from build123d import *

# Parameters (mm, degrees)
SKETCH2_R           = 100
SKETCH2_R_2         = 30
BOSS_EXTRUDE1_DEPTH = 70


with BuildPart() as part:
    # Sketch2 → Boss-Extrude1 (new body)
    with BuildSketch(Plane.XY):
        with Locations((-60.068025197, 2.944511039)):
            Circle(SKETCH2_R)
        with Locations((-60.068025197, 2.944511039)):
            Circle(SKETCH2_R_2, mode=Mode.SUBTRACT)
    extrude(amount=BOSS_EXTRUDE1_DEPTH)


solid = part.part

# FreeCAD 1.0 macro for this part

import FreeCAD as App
import Part
import Sketcher
from FreeCAD import Vector
Q = App.Units.Quantity

doc = App.newDocument("Part")
body = doc.addObject("PartDesign::Body", "Body")

sketch1 = doc.addObject("Sketcher::SketchObject", "Sketch")
body.addObject(sketch1)
sketch1.AttachmentSupport = (doc.XY_Plane, [""])
sketch1.MapMode = "FlatFace"
sketch1.addGeometry([
    Part.Circle(Vector(-60.068025, 2.944511, 0), Vector(0, 0, 1), 100),
    Part.Circle(Vector(-60.068025, 2.944511, 0), Vector(0, 0, 1), 30),
], False)
sketch1.addConstraint([
    Sketcher.Constraint("Coincident", 1, 3, 0, 3),
    Sketcher.Constraint("Diameter", 0, Q("200 mm")),
    Sketcher.Constraint("Diameter", 1, Q("60 mm")),
    Sketcher.Constraint("DistanceY", -1, 1, 0, 3, Q("2.944511 mm")),
    Sketcher.Constraint("DistanceX", 0, 3, -1, 1, Q("60.068025 mm")),
])
pad1 = doc.addObject("PartDesign::Pad", "Pad")
body.addObject(pad1)
pad1.Profile = sketch1
pad1.Length = 70

doc.recompute()
